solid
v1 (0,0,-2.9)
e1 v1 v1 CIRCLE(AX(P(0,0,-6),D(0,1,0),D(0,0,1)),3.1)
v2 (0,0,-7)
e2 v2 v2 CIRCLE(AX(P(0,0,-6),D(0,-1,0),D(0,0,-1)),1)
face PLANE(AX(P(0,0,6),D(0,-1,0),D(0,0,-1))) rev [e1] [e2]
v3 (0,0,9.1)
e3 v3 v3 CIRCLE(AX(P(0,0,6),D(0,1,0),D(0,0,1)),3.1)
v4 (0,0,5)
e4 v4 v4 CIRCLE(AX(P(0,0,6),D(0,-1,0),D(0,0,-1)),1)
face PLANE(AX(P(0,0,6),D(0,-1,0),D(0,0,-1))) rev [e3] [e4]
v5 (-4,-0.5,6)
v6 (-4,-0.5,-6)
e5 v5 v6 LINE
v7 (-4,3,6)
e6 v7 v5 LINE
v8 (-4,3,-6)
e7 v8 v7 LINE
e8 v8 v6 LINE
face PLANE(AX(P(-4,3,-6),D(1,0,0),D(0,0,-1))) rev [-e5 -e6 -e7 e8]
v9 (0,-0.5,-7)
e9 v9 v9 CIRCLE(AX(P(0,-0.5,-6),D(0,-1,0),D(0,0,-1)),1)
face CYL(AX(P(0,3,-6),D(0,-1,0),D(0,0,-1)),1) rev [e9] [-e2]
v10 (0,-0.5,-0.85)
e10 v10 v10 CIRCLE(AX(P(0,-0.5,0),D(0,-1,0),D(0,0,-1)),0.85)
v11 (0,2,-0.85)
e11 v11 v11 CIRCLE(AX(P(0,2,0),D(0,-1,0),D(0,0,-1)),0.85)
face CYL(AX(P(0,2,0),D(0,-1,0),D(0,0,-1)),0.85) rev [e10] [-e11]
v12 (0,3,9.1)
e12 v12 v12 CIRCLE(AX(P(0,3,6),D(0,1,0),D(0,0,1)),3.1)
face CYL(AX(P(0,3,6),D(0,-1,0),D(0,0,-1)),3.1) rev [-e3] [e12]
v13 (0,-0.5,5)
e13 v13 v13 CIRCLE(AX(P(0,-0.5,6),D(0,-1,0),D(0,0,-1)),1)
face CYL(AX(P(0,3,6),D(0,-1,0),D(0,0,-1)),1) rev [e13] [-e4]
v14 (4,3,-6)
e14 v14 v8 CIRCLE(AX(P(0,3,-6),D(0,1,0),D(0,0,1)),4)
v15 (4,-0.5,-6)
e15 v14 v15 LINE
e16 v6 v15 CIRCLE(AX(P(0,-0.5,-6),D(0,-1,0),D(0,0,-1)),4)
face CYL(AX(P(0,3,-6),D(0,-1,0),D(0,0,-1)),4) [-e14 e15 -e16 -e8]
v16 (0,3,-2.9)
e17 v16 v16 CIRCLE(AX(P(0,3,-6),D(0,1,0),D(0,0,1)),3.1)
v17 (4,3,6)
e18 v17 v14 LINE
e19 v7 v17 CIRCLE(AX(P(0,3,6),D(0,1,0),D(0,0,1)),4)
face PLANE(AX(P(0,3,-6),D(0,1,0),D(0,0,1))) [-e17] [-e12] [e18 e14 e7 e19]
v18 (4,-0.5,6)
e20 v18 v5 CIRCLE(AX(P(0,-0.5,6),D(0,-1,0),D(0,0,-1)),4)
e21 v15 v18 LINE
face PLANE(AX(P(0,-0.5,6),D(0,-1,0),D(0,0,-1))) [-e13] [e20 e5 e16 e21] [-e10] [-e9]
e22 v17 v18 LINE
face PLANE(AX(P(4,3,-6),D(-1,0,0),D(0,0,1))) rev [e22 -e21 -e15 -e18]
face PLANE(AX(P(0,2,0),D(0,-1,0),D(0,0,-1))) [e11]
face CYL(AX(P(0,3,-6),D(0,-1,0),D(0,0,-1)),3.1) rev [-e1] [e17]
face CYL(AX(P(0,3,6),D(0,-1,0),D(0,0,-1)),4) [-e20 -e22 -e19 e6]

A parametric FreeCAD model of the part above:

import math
import FreeCAD as App
import Part
import Sketcher

V = App.Vector

doc = App.newDocument("Part")
body = doc.addObject("PartDesign::Body", "Body")

# Sketch on XZ plane
sketch1 = body.newObject("Sketcher::SketchObject", "Sketch")
sketch1.AttachmentSupport = (doc.getObject("XZ_Plane"), [""])
sketch1.MapMode = "FlatFace"
sketch1.addGeometry(Part.LineSegment(V(4, 6, 0), V(4, -6, 0)), False)
sketch1.addGeometry(Part.ArcOfCircle(Part.Circle(V(0, -6, 0), V(0, 0, 1), 4), math.radians(180), math.radians(360)), False)
sketch1.addGeometry(Part.LineSegment(V(-4, -6, 0), V(-4, 6, 0)), False)
sketch1.addGeometry(Part.ArcOfCircle(Part.Circle(V(0, 6, 0), V(0, 0, 1), 4), math.radians(0), math.radians(180)), False)
sketch1.addGeometry(Part.Circle(V(0, 6, 0), V(0, 0, 1), 3.1), False)
sketch1.addGeometry(Part.Circle(V(0, -6, 0), V(0, 0, 1), 3.1), False)
sketch1.addConstraint(Sketcher.Constraint("Tangent", 0, 2, 1, 2))
sketch1.addConstraint(Sketcher.Constraint("Tangent", 1, 1, 2, 1))
sketch1.addConstraint(Sketcher.Constraint("Tangent", 2, 2, 3, 2))
sketch1.addConstraint(Sketcher.Constraint("Tangent", 3, 1, 0, 1))
sketch1.addConstraint(Sketcher.Constraint("Vertical", 0))
sketch1.addConstraint(Sketcher.Constraint("Vertical", 2))
sketch1.addConstraint(Sketcher.Constraint("Coincident", 4, 3, 3, 3))
sketch1.addConstraint(Sketcher.Constraint("Coincident", 5, 3, 1, 3))
sketch1.addConstraint(Sketcher.Constraint("Equal", 4, 5))
sketch1.addConstraint(Sketcher.Constraint("Symmetric", 1, 3, 3, 3, -1, 1))
sketch1.addConstraint(Sketcher.Constraint("Radius", 1, 4.0))
sketch1.addConstraint(Sketcher.Constraint("Diameter", 4, 6.2))
sketch1.addConstraint(Sketcher.Constraint("DistanceY", 0, 2, 0, 1, 12.0))
pad1 = body.newObject("PartDesign::Pad", "Pad")
pad1.Profile = sketch1
pad1.Length = 3
pad1.Reversed = True

# Sketch on XZ plane
sketch2 = body.newObject("Sketcher::SketchObject", "Sketch001")
sketch2.AttachmentSupport = (doc.getObject("XZ_Plane"), [""])
sketch2.MapMode = "FlatFace"
sketch2.AttachmentOffset = App.Placement(V(0, 0, 0.5), App.Rotation())
sketch2.addGeometry(Part.LineSegment(V(4, -6, 0), V(4, 6, 0)), False)
sketch2.addGeometry(Part.ArcOfCircle(Part.Circle(V(0, 6, 0), V(0, 0, 1), 4), math.radians(0), math.radians(180)), False)
sketch2.addGeometry(Part.LineSegment(V(-4, 6, 0), V(-4, -6, 0)), False)
sketch2.addGeometry(Part.ArcOfCircle(Part.Circle(V(0, -6, 0), V(0, 0, 1), 4), math.radians(180), math.radians(360)), False)
sketch2.addConstraint(Sketcher.Constraint("Tangent", 0, 2, 1, 1))
sketch2.addConstraint(Sketcher.Constraint("Tangent", 1, 2, 2, 1))
sketch2.addConstraint(Sketcher.Constraint("Tangent", 2, 2, 3, 1))
sketch2.addConstraint(Sketcher.Constraint("Tangent", 3, 2, 0, 1))
sketch2.addConstraint(Sketcher.Constraint("Vertical", 0))
sketch2.addConstraint(Sketcher.Constraint("Vertical", 2))
sketch2.addConstraint(Sketcher.Constraint("Symmetric", 1, 3, 3, 3, -1, 1))
sketch2.addConstraint(Sketcher.Constraint("Radius", 1, 4.0))
sketch2.addConstraint(Sketcher.Constraint("DistanceY", 0, 1, 0, 2, 12.0))
pad2 = body.newObject("PartDesign::Pad", "Pad001")
pad2.Profile = sketch2
pad2.Length = 0.5
pad2.Reversed = True

# Sketch on XZ plane
sketch3 = body.newObject("Sketcher::SketchObject", "Sketch002")
sketch3.AttachmentSupport = (doc.getObject("XZ_Plane"), [""])
sketch3.MapMode = "FlatFace"
sketch3.AttachmentOffset = App.Placement(V(0, 0, 0.5), App.Rotation())
sketch3.addGeometry(Part.Circle(V(0, 0, 0), V(0, 0, 1), 0.8), False)
sketch3.addConstraint(Sketcher.Constraint("Coincident", 0, 3, -1, 1))
sketch3.addConstraint(Sketcher.Constraint("Diameter", 0, 1.7))
pocket1 = body.newObject("PartDesign::Pocket", "Pocket")
pocket1.Profile = sketch3
pocket1.Length = 2.5

# Sketch on XZ plane
sketch4 = body.newObject("Sketcher::SketchObject", "Sketch003")
sketch4.AttachmentSupport = (doc.getObject("XZ_Plane"), [""])
sketch4.MapMode = "FlatFace"
sketch4.AttachmentOffset = App.Placement(V(0, 0, 0.5), App.Rotation())
sketch4.addGeometry(Part.Circle(V(0, 6, 0), V(0, 0, 1), 1), False)
sketch4.addGeometry(Part.Circle(V(0, -6, 0), V(0, 0, 1), 1), False)
sketch4.addConstraint(Sketcher.Constraint("Equal", 0, 1))
sketch4.addConstraint(Sketcher.Constraint("Symmetric", 0, 3, 1, 3, -1, 1))
sketch4.addConstraint(Sketcher.Constraint("PointOnObject", 0, 3, -2))
sketch4.addConstraint(Sketcher.Constraint("Diameter", 0, 2.0))
sketch4.addConstraint(Sketcher.Constraint("DistanceY", -1, 1, 0, 3, 6.0))
pocket2 = body.newObject("PartDesign::Pocket", "Pocket001")
pocket2.Profile = sketch4
pocket2.Type = "ThroughAll"

doc.recompute()
